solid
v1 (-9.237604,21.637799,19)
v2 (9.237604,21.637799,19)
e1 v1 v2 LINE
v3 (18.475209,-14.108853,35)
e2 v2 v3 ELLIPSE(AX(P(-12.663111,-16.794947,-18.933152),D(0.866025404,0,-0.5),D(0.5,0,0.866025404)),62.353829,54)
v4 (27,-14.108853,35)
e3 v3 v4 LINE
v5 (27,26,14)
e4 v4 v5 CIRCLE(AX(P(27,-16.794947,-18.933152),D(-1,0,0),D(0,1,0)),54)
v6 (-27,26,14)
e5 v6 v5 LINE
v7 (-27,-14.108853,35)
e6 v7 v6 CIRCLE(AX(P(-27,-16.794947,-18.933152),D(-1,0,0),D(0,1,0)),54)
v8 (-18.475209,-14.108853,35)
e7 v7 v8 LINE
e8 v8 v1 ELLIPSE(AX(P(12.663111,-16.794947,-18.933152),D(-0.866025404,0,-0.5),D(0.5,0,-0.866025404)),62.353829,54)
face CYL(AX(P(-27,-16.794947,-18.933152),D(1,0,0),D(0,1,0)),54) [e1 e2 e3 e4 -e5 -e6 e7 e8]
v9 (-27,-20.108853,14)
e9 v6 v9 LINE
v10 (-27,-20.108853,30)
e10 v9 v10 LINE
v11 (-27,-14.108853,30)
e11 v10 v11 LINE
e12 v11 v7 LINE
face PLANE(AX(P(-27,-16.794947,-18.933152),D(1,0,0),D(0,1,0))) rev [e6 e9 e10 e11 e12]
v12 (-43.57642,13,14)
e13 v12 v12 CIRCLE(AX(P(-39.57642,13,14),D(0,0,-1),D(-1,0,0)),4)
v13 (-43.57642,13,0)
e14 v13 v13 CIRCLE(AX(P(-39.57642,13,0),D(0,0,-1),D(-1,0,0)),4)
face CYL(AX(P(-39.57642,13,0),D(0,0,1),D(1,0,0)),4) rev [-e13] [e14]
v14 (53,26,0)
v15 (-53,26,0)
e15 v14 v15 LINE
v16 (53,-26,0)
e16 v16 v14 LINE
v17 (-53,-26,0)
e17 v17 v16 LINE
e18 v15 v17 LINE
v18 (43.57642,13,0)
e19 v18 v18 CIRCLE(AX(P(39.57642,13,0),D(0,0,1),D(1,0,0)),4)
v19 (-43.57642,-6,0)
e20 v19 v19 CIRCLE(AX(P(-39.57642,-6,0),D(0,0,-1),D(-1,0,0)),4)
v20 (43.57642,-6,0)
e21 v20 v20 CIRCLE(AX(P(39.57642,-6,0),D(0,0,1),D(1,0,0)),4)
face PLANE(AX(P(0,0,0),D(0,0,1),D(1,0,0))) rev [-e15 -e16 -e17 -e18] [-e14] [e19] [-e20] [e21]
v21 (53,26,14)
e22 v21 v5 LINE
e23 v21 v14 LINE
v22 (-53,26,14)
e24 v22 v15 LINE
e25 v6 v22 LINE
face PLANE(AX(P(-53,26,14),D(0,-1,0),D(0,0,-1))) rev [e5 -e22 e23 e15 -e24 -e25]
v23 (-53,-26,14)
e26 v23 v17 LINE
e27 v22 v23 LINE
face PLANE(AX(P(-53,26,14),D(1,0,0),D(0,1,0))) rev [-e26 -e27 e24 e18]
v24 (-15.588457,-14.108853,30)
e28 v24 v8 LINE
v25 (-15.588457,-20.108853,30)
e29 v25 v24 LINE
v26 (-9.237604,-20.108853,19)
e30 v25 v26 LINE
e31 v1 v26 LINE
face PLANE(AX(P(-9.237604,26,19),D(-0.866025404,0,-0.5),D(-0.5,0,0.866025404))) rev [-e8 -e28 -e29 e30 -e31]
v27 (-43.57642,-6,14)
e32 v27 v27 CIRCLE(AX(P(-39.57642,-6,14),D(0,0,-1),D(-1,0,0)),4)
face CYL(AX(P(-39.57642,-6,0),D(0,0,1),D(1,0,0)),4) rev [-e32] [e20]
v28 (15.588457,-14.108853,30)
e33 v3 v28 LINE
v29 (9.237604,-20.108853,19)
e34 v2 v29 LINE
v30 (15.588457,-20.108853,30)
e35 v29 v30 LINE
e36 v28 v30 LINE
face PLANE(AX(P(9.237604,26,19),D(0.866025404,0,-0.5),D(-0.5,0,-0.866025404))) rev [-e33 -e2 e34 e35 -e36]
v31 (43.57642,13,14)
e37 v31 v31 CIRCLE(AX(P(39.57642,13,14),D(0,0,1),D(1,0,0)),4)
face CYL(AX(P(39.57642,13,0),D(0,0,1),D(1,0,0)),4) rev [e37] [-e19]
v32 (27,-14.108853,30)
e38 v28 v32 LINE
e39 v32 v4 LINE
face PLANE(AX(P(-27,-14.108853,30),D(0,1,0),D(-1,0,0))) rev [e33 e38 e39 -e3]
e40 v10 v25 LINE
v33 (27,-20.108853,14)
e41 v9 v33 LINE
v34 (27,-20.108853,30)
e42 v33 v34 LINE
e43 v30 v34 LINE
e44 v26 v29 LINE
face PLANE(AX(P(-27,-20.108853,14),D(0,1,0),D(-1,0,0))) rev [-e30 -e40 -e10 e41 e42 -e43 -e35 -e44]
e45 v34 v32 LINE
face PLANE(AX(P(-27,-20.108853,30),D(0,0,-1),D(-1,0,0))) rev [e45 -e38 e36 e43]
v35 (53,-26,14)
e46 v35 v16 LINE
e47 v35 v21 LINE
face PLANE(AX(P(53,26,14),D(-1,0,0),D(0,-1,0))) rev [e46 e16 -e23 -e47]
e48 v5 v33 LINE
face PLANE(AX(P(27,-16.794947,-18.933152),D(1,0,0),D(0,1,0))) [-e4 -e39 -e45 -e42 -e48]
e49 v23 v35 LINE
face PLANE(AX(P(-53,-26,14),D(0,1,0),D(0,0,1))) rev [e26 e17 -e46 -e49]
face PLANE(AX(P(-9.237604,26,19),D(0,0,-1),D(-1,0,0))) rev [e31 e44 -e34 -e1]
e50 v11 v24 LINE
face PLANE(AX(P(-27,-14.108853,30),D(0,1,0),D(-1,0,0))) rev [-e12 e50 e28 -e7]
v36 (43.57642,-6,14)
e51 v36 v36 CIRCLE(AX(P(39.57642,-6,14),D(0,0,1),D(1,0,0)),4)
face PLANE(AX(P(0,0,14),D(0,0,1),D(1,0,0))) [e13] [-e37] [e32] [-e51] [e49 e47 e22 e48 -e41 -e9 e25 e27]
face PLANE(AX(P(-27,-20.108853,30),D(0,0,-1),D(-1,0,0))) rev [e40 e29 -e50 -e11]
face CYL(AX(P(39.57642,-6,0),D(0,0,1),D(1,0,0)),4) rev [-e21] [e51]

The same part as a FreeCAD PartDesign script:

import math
import FreeCAD as App
import Part
import Sketcher
from FreeCAD import Vector
Q = App.Units.Quantity


def add_polygon(sketch, points):
    """Adds a closed chain of lines whose ends are joined by coincident constraints."""
    first, n = sketch.GeometryCount, len(points)
    for a, b in zip(points, points[1:] + points[:1]):
        sketch.addGeometry(Part.LineSegment(App.Vector(*a, 0), App.Vector(*b, 0)), False)
    for i in range(n):
        sketch.addConstraint(Sketcher.Constraint("Coincident", first + i, 2, first + (i + 1) % n, 1))

doc = App.newDocument("Part")
params = doc.addObject("Spreadsheet::Sheet", "Params")
for row, (alias, value) in enumerate([
    ("sketch1_width", "106 mm"),
    ("sketch1_height", "52 mm"),
    ("pad1_length", "14 mm"),
    ("sketch2_diameter", "8 mm"),
    ("pocket1_length", "14 mm"),
    ("sketch3_radius", "54 mm"),
    ("sketch3_width", "6 mm"),
    ("sketch3_height", "16 mm"),
    ("sketch3_height2", "5 mm"),
    ("pad2_length", "54 mm"),
], start=1):
    params.set(f"A{row}", alias)
    params.set(f"B{row}", "=" + value)
    params.setAlias(f"B{row}", alias)

body = doc.addObject("PartDesign::Body", "Body")

# Sketch on XY plane
sketch1 = body.newObject("Sketcher::SketchObject", "Sketch")
sketch1.AttachmentSupport = (doc.getObject("XY_Plane"), [""])
sketch1.MapMode = "FlatFace"
add_polygon(sketch1, [(-53, 26), (-53, -26), (53, -26), (53, 26)])  # lines 0-3
sketch1.addConstraint([
    Sketcher.Constraint("Vertical", 0),
    Sketcher.Constraint("Horizontal", 1),
    Sketcher.Constraint("Vertical", 2),
    Sketcher.Constraint("Horizontal", 3),
    Sketcher.Constraint("Symmetric", 0, 2, 2, 2, -1, 1),
    Sketcher.Constraint("DistanceX", 1, 1, 1, 2, Q("106 mm")),
    Sketcher.Constraint("DistanceY", 0, 2, 0, 1, Q("52 mm")),
])
sketch1.setExpression("Constraints[9]", "Params.sketch1_width")
sketch1.setExpression("Constraints[10]", "Params.sketch1_height")
pad1 = body.newObject("PartDesign::Pad", "Pad")
pad1.Profile = sketch1
pad1.setExpression("Length", "Params.pad1_length")

# Sketch on XY plane
sketch2 = body.newObject("Sketcher::SketchObject", "Sketch001")
sketch2.AttachmentSupport = (doc.getObject("XY_Plane"), [""])
sketch2.MapMode = "FlatFace"
sketch2.AttachmentOffset = App.Placement(Vector(0, 0, 14), App.Rotation())
sketch2.addGeometry([
    Part.Circle(Vector(39.57642, 13, 0), Vector(0, 0, 1), 4),
    Part.Circle(Vector(39.57642, -6, 0), Vector(0, 0, 1), 4),
], False)
sketch2.addConstraint([
    Sketcher.Constraint("Equal", 0, 1),
    Sketcher.Constraint("Vertical", 0, 3, 1, 3),
    Sketcher.Constraint("Diameter", 0, Q("8 mm")),
    Sketcher.Constraint("DistanceY", -1, 1, 0, 3, Q("13 mm")),
    Sketcher.Constraint("DistanceY", 1, 3, -1, 1, Q("6 mm")),
    Sketcher.Constraint("DistanceX", -1, 1, 0, 3, Q("39.57642 mm")),
])
sketch2.setExpression("Constraints[2]", "Params.sketch2_diameter")
pocket1 = body.newObject("PartDesign::Pocket", "Pocket")
pocket1.Profile = sketch2
pocket1.setExpression("Length", "Params.pocket1_length")
doc.recompute()

mirrored = body.newObject("PartDesign::Mirrored", "Mirrored")
mirrored.Originals = [pocket1]
mirrored.MirrorPlane = (doc.getObject("YZ_Plane"), [""])
body.Tip = mirrored

# Sketch on YZ plane
sketch3 = body.newObject("Sketcher::SketchObject", "Sketch002")
sketch3.AttachmentSupport = (doc.getObject("YZ_Plane"), [""])
sketch3.MapMode = "FlatFace"
sketch3.addGeometry([
    Part.LineSegment(Vector(26, 14, 0), Vector(-20.108853, 14, 0)),  # 0
    Part.LineSegment(Vector(-20.108853, 14, 0), Vector(-20.108853, 30, 0)),  # 1
    Part.LineSegment(Vector(-20.108853, 30, 0), Vector(-14.108853, 30, 0)),  # 2
    Part.LineSegment(Vector(-14.108853, 30, 0), Vector(-14.108853, 35, 0)),  # 3
    Part.ArcOfCircle(Part.Circle(Vector(-16.794947, -18.933152, 0), Vector(0, 0, 1), 54), math.radians(37.580334), math.radians(87.148789)),  # 4
], False)
sketch3.addConstraint([
    Sketcher.Constraint("Coincident", 0, 2, 1, 1),
    Sketcher.Constraint("Coincident", 1, 2, 2, 1),
    Sketcher.Constraint("Coincident", 2, 2, 3, 1),
    Sketcher.Constraint("Coincident", 3, 2, 4, 2),
    Sketcher.Constraint("Coincident", 4, 1, 0, 1),
    Sketcher.Constraint("Horizontal", 0),
    Sketcher.Constraint("Vertical", 1),
    Sketcher.Constraint("Horizontal", 2),
    Sketcher.Constraint("Vertical", 3),
    Sketcher.Constraint("Radius", 4, Q("54 mm")),
    Sketcher.Constraint("DistanceX", 2, 1, 2, 2, Q("6 mm")),
    Sketcher.Constraint("DistanceY", 1, 1, 1, 2, Q("16 mm")),
    Sketcher.Constraint("DistanceY", 3, 1, 3, 2, Q("5 mm")),
    Sketcher.Constraint("DistanceY", -1, 1, 0, 2, Q("14 mm")),
    Sketcher.Constraint("DistanceX", -1, 1, 4, 1, Q("26 mm")),
    Sketcher.Constraint("DistanceX", 0, 2, 0, 1, Q("46.108853 mm")),
])
sketch3.setExpression("Constraints[9]", "Params.sketch3_radius")
sketch3.setExpression("Constraints[10]", "Params.sketch3_width")
sketch3.setExpression("Constraints[11]", "Params.sketch3_height")
sketch3.setExpression("Constraints[12]", "Params.sketch3_height2")
pad2 = body.newObject("PartDesign::Pad", "Pad001")
pad2.Profile = sketch3
pad2.setExpression("Length", "Params.pad2_length")
pad2.Midplane = True

# Sketch on XZ plane
sketch4 = body.newObject("Sketcher::SketchObject", "Sketch003")
sketch4.AttachmentSupport = (doc.getObject("XZ_Plane"), [""])
sketch4.MapMode = "FlatFace"
sketch4.AttachmentOffset = App.Placement(Vector(0, 0, 20.108853), App.Rotation())
add_polygon(sketch4, [(-18.475209, 35), (-9.237604, 19), (9.237604, 19), (18.475209, 35)])  # lines 0-3
sketch4.addConstraint([
    Sketcher.Constraint("Horizontal", 1),
    Sketcher.Constraint("Horizontal", 3),
    Sketcher.Constraint("Equal", 0, 2),
    Sketcher.Constraint("Angle", 0, Q("-60 deg")),
    Sketcher.Constraint("DistanceY", -1, 1, 0, 2, Q("19 mm")),
    Sketcher.Constraint("DistanceY", -1, 1, 2, 2, Q("35 mm")),
    Sketcher.Constraint("DistanceX", 1, 1, 1, 2, Q("18.475209 mm")),
    Sketcher.Constraint("DistanceX", -1, 1, 2, 2, Q("18.475209 mm")),
])
pocket2 = body.newObject("PartDesign::Pocket", "Pocket001")
pocket2.Profile = sketch4
pocket2.Type = "ThroughAll"

doc.recompute()
